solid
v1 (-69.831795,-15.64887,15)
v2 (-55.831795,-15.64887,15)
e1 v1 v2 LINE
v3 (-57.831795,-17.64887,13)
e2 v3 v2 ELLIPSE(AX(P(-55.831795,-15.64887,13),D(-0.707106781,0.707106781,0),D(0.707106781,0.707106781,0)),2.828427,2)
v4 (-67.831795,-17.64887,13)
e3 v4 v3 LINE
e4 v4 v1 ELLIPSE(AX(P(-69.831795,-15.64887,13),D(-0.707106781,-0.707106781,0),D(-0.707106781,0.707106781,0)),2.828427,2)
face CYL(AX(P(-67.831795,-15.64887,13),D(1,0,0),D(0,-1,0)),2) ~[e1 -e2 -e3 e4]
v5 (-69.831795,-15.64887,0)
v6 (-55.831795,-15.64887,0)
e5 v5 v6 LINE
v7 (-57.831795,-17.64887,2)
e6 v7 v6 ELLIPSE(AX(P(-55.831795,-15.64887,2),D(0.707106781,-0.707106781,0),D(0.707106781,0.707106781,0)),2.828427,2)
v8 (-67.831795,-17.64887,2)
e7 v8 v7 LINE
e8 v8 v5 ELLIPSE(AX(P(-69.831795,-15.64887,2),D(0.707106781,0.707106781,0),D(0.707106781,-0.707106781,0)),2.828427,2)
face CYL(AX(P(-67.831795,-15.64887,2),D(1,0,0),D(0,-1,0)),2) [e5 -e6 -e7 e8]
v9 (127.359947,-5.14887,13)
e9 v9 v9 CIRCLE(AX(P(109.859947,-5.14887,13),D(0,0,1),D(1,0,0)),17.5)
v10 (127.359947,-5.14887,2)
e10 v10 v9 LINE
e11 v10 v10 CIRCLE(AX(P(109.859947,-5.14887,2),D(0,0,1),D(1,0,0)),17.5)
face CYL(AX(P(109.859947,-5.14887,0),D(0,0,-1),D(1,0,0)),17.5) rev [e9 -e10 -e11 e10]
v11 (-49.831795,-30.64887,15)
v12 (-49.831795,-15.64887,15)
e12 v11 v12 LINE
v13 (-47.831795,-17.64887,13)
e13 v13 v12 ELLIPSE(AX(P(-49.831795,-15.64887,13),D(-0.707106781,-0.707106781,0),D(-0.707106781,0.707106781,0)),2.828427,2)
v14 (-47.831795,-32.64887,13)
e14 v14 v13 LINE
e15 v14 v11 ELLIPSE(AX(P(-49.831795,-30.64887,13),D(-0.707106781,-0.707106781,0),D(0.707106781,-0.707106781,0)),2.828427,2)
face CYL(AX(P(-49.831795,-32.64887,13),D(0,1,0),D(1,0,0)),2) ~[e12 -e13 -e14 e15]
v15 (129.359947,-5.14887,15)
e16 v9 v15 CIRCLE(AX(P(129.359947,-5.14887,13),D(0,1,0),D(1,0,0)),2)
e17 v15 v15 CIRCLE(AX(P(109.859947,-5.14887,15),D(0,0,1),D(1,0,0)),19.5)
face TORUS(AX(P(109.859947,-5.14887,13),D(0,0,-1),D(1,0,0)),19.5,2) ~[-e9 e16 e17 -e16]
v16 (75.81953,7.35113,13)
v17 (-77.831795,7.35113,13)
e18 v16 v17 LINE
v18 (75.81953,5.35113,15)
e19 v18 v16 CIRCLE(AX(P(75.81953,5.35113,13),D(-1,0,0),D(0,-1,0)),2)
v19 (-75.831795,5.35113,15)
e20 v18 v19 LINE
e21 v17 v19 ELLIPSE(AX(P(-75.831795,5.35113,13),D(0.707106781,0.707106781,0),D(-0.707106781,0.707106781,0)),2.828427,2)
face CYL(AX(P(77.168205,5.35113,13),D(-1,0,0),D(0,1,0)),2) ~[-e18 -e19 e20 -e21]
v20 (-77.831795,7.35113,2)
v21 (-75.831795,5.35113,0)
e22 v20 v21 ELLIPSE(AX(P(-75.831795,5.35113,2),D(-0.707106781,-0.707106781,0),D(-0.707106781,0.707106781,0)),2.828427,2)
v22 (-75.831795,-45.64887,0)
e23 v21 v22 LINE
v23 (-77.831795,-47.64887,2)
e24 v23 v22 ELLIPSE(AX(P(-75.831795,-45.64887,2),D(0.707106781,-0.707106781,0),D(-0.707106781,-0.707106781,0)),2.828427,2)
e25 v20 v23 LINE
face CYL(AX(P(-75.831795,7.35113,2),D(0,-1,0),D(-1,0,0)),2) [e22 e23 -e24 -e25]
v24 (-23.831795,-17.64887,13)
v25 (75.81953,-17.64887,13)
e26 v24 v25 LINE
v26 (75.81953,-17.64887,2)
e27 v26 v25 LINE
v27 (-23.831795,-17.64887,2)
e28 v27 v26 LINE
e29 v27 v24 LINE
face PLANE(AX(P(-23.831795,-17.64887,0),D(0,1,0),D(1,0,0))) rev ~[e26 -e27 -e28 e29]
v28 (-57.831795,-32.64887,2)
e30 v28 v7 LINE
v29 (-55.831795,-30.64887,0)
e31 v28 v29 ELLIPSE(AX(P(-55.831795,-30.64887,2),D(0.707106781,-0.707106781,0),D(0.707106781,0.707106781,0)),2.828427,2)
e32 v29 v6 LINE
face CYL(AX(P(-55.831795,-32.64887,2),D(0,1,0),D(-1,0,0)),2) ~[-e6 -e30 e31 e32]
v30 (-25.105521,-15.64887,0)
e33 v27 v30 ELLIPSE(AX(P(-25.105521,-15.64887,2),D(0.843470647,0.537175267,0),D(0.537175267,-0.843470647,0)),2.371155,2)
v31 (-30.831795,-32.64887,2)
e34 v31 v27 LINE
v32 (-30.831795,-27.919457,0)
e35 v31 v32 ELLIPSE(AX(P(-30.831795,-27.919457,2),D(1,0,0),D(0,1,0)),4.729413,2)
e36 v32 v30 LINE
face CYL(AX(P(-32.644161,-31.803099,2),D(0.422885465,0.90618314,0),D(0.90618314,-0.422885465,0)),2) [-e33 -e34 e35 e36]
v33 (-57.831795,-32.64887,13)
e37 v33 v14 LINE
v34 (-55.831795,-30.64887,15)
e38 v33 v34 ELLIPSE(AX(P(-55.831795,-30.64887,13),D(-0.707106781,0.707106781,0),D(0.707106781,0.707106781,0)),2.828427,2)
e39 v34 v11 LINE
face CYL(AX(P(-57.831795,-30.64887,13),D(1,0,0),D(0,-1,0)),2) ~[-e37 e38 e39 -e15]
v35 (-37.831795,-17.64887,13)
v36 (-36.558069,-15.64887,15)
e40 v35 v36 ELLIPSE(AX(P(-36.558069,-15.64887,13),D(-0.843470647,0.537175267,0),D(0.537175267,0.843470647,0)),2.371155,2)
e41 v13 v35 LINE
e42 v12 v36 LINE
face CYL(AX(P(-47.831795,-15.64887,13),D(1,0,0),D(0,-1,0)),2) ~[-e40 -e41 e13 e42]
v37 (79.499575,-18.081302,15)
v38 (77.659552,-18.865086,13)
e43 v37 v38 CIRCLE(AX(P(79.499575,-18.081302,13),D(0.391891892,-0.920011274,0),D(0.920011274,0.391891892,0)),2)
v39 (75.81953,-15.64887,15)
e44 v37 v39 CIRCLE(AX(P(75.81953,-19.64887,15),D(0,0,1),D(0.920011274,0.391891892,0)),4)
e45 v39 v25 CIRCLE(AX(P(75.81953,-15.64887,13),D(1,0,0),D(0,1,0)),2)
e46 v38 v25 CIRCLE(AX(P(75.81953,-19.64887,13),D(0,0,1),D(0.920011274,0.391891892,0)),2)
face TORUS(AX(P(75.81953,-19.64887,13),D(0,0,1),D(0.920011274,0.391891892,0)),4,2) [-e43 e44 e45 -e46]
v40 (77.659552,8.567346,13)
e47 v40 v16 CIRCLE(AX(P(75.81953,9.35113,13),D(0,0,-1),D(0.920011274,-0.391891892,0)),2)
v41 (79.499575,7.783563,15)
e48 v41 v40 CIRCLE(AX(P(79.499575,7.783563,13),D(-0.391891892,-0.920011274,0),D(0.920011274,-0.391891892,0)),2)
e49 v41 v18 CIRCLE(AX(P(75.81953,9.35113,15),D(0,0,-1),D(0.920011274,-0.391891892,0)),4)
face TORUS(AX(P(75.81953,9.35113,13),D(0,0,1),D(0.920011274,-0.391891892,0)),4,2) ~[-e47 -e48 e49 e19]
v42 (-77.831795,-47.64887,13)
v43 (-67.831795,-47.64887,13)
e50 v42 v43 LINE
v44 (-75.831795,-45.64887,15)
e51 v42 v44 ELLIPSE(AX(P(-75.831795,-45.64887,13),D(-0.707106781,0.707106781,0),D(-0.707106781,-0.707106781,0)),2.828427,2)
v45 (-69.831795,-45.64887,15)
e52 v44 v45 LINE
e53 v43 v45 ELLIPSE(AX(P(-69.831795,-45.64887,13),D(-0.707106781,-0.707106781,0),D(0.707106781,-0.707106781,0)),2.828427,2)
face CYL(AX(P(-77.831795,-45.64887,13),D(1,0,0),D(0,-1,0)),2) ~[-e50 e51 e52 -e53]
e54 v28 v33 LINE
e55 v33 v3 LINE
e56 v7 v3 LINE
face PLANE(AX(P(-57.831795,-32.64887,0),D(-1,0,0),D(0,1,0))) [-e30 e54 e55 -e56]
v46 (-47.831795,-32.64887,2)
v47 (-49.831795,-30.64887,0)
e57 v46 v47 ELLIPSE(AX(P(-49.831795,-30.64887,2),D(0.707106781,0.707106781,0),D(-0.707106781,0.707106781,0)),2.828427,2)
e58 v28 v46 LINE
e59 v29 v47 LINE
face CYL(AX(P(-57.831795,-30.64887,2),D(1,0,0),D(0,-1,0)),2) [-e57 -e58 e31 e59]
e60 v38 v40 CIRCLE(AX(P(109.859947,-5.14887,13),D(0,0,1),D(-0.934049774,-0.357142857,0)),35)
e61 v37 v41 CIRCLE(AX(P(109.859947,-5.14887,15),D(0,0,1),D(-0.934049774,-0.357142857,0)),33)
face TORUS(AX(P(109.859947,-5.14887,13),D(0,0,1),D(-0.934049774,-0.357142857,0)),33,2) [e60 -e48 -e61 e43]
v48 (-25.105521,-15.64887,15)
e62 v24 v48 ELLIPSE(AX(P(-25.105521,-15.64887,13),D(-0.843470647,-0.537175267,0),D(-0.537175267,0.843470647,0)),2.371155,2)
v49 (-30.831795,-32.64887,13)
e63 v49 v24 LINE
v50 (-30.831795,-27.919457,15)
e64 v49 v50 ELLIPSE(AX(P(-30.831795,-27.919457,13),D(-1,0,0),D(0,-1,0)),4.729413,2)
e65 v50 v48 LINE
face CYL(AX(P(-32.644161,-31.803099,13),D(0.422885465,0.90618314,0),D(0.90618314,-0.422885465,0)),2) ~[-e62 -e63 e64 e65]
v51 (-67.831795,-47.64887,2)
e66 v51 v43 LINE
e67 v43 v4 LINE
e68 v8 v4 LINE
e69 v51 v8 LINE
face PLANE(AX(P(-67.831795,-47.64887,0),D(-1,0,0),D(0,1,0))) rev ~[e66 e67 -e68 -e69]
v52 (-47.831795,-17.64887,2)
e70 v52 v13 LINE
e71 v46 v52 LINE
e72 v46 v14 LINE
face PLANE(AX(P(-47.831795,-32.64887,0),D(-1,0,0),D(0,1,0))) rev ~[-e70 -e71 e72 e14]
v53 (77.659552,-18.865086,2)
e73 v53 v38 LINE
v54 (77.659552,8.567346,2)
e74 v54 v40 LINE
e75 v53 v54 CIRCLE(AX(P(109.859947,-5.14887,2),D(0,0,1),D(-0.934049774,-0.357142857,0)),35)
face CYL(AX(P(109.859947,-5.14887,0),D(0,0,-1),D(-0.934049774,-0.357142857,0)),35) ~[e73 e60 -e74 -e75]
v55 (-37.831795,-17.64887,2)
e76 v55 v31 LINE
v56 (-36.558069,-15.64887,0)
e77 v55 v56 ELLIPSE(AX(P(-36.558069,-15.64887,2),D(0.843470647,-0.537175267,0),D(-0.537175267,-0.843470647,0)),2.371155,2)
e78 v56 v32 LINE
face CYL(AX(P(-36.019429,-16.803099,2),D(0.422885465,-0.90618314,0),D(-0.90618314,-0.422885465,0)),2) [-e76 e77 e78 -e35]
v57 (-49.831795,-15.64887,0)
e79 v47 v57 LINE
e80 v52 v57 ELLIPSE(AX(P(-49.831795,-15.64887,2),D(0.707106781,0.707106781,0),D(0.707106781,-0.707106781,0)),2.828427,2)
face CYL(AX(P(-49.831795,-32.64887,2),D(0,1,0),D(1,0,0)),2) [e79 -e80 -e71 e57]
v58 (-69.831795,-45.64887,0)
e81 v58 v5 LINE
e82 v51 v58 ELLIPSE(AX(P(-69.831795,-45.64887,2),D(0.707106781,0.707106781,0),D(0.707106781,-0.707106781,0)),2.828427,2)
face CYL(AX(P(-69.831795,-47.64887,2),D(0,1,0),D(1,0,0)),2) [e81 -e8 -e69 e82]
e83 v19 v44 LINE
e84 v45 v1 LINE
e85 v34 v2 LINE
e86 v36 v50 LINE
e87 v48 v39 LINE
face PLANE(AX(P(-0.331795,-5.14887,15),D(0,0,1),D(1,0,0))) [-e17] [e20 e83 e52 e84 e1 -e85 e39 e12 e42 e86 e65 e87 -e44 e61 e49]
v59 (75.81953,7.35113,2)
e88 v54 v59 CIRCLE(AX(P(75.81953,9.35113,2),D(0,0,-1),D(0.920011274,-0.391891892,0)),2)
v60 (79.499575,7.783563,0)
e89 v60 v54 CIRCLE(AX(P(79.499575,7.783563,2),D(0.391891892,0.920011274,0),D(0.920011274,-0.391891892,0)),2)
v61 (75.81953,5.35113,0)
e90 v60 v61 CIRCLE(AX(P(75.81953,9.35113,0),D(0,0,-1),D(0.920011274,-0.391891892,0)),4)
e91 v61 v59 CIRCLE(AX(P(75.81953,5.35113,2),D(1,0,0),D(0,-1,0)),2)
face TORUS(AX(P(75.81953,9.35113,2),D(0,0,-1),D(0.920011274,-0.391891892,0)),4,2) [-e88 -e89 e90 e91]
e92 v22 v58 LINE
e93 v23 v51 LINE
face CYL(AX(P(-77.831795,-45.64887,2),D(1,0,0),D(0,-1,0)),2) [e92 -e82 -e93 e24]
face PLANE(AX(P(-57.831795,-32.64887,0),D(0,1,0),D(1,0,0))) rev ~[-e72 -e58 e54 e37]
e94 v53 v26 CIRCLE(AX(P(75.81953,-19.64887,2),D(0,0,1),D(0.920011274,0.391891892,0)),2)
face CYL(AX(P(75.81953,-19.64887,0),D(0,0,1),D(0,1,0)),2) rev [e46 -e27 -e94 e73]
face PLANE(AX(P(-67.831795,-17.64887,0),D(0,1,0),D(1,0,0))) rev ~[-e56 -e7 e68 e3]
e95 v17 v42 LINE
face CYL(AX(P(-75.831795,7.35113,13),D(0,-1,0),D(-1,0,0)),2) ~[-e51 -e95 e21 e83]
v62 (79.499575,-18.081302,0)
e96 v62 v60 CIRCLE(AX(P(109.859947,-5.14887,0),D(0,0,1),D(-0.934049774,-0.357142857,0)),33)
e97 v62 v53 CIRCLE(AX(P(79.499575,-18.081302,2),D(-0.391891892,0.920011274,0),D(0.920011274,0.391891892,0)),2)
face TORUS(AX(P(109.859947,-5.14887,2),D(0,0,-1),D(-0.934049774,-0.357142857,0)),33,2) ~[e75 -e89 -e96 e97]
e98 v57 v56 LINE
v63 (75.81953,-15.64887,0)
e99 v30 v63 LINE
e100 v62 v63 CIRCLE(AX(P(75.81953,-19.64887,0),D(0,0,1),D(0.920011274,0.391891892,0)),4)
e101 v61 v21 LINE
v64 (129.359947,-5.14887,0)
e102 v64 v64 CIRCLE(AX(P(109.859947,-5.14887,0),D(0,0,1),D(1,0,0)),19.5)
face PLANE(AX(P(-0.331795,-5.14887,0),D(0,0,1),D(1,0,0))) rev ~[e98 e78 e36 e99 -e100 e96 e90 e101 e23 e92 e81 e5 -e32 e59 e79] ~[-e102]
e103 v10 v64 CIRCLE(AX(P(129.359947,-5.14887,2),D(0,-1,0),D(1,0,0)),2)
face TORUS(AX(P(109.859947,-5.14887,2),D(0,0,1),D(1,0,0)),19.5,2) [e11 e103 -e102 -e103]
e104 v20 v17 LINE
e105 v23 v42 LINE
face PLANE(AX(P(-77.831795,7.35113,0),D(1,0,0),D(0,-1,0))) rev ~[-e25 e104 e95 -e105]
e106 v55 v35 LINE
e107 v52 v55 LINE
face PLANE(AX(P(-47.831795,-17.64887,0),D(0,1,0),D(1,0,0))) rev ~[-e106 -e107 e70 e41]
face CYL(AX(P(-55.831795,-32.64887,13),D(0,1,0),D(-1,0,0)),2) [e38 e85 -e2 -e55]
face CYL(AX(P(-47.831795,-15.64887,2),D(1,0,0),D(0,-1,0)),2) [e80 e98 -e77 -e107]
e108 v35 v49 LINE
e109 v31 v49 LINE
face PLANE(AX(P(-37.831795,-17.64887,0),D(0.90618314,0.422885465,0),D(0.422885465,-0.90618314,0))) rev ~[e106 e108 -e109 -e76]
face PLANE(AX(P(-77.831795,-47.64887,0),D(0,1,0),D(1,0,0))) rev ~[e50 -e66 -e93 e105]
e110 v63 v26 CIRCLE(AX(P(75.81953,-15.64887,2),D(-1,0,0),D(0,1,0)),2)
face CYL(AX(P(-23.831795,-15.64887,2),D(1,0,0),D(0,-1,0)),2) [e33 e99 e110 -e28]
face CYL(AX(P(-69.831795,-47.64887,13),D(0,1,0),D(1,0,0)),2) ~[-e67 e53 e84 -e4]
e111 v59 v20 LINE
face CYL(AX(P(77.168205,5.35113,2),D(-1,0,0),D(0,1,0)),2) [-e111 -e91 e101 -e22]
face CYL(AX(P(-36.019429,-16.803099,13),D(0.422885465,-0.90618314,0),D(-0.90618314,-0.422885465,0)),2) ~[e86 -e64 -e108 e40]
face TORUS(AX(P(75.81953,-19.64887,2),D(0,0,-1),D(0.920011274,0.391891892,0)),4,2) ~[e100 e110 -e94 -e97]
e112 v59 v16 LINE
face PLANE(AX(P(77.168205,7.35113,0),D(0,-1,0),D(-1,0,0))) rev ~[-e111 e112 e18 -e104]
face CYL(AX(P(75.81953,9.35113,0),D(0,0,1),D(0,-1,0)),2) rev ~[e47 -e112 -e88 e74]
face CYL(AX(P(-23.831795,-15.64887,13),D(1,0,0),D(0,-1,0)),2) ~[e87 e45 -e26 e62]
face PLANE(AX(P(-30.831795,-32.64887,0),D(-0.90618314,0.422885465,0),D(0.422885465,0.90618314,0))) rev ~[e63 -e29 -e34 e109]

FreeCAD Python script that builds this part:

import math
import FreeCAD as App
import Part
import Sketcher
from FreeCAD import Vector
Q = App.Units.Quantity


def edges_at(feature, points):
    """Names of the edges that pass closest to the given points."""
    edges = feature.Shape.Edges
    near = lambda p: min(range(len(edges)), key=lambda i: edges[i].distToShape(Part.Vertex(*p))[0])
    return sorted({f"Edge{near(p) + 1}" for p in points})

doc = App.newDocument("Part")
params = doc.addObject("Spreadsheet::Sheet", "Params")
for row, (alias, value) in enumerate([
    ("sketch1_diameter", "35 mm"),
    ("sketch1_radius", "35 mm"),
    ("sketch1_width", "155 mm"),
    ("sketch1_width2", "10 mm"),
    ("sketch1_width3", "101 mm"),
    ("pad1_length", "15 mm"),
    ("fillet_radius", "2 mm"),
], start=1):
    params.set(f"A{row}", alias)
    params.set(f"B{row}", "=" + value)
    params.setAlias(f"B{row}", alias)

body = doc.addObject("PartDesign::Body", "Body")

# Sketch on XY plane
sketch1 = body.newObject("Sketcher::SketchObject", "Sketch")
sketch1.AttachmentSupport = (doc.getObject("XY_Plane"), [""])
sketch1.MapMode = "FlatFace"
sketch1.addGeometry([
    Part.LineSegment(Vector(77, 7, 0), Vector(-78, 7, 0)),  # 0
    Part.LineSegment(Vector(-78, 7, 0), Vector(-78, -48, 0)),  # 1
    Part.LineSegment(Vector(-78, -48, 0), Vector(-68, -48, 0)),  # 2
    Part.LineSegment(Vector(-68, -48, 0), Vector(-68, -18, 0)),  # 3
    Part.LineSegment(Vector(-68, -18, 0), Vector(-58, -18, 0)),  # 4
    Part.LineSegment(Vector(-58, -18, 0), Vector(-58, -33, 0)),  # 5
    Part.LineSegment(Vector(-58, -33, 0), Vector(-48, -33, 0)),  # 6
    Part.LineSegment(Vector(-48, -33, 0), Vector(-48, -18, 0)),  # 7
    Part.LineSegment(Vector(-48, -18, 0), Vector(-38, -18, 0)),  # 8
    Part.LineSegment(Vector(-38, -18, 0), Vector(-31, -33, 0)),  # 9
    Part.LineSegment(Vector(-31, -33, 0), Vector(-24, -18, 0)),  # 10
    Part.LineSegment(Vector(-24, -18, 0), Vector(77, -18, 0)),  # 11
    Part.ArcOfCircle(Part.Circle(Vector(110, -5, 0), Vector(0, 0, 1), 35), math.radians(-159), math.radians(159)),  # 12
    Part.Circle(Vector(110, -5, 0), Vector(0, 0, 1), 18),  # 13
], False)
sketch1.addConstraint([
    Sketcher.Constraint("Coincident", 0, 2, 1, 1),
    Sketcher.Constraint("Coincident", 1, 2, 2, 1),
    Sketcher.Constraint("Coincident", 2, 2, 3, 1),
    Sketcher.Constraint("Coincident", 3, 2, 4, 1),
    Sketcher.Constraint("Coincident", 4, 2, 5, 1),
    Sketcher.Constraint("Coincident", 5, 2, 6, 1),
    Sketcher.Constraint("Coincident", 6, 2, 7, 1),
    Sketcher.Constraint("Coincident", 7, 2, 8, 1),
    Sketcher.Constraint("Coincident", 8, 2, 9, 1),
    Sketcher.Constraint("Coincident", 9, 2, 10, 1),
    Sketcher.Constraint("Coincident", 10, 2, 11, 1),
    Sketcher.Constraint("Coincident", 11, 2, 12, 1),
    Sketcher.Constraint("Coincident", 12, 2, 0, 1),
    Sketcher.Constraint("Horizontal", 0),
    Sketcher.Constraint("Vertical", 1),
    Sketcher.Constraint("Horizontal", 2),
    Sketcher.Constraint("Vertical", 3),
    Sketcher.Constraint("Horizontal", 4),
    Sketcher.Constraint("Vertical", 5),
    Sketcher.Constraint("Horizontal", 6),
    Sketcher.Constraint("Vertical", 7),
    Sketcher.Constraint("Horizontal", 8),
    Sketcher.Constraint("Horizontal", 11),
    Sketcher.Constraint("Coincident", 13, 3, 12, 3),
    Sketcher.Constraint("Horizontal", 4, 2, 7, 2),
    Sketcher.Constraint("Horizontal", 6, 2, 9, 2),
    Sketcher.Constraint("Horizontal", 8, 2, 10, 2),
    Sketcher.Constraint("Vertical", 11, 2, 12, 2),
    Sketcher.Constraint("Equal", 2, 4),
    Sketcher.Constraint("Equal", 4, 6),
    Sketcher.Constraint("Equal", 6, 8),
    Sketcher.Constraint("Equal", 9, 10),
    Sketcher.Constraint("Diameter", 13, Q("35 mm")),
    Sketcher.Constraint("Radius", 12, Q("35 mm")),
    Sketcher.Constraint("DistanceX", 0, 2, 0, 1, Q("155 mm")),
    Sketcher.Constraint("DistanceX", 2, 1, 2, 2, Q("10 mm")),
    Sketcher.Constraint("DistanceX", 11, 1, 11, 2, Q("101 mm")),
    Sketcher.Constraint("DistanceY", 1, 2, 1, 1, Q("55 mm")),
    Sketcher.Constraint("DistanceY", 3, 1, 3, 2, Q("30 mm")),
    Sketcher.Constraint("DistanceY", 5, 2, 5, 1, Q("15 mm")),
    Sketcher.Constraint("DistanceY", 12, 3, -1, 1, Q("5.14887 mm")),
    Sketcher.Constraint("DistanceX", -1, 1, 12, 3, Q("109.859947 mm")),
])
sketch1.setExpression("Constraints[32]", "Params.sketch1_diameter")
sketch1.setExpression("Constraints[33]", "Params.sketch1_radius")
sketch1.setExpression("Constraints[34]", "Params.sketch1_width")
sketch1.setExpression("Constraints[35]", "Params.sketch1_width2")
sketch1.setExpression("Constraints[36]", "Params.sketch1_width3")
pad1 = body.newObject("PartDesign::Pad", "Pad")
pad1.Profile = sketch1
pad1.setExpression("Length", "Params.pad1_length")
doc.recompute()

fillet = body.newObject("PartDesign::Fillet", "Fillet")
fillet.Base = (pad1, edges_at(pad1, [
    (-0.332, 7.351, 0),
    (26.668, -17.649, 0),
    (-27.332, -25.149, 0),
    (-34.332, -25.149, 0),
    (-42.832, -17.649, 0),
    (-47.832, -25.149, 0),
    (-52.832, -32.649, 0),
    (-77.832, -20.149, 0),
    (-62.832, -17.649, 0),
    (-57.832, -25.149, 0),
    (-72.832, -47.649, 0),
    (-67.832, -32.649, 0),
    (77.168, -17.649, 7.5),
    (77.168, 7.351, 7.5),
    (144.86, -5.149, 0),
    (144.86, -5.149, 15),
    (92.36, -5.149, 0),
    (-0.332, 7.351, 15),
    (-77.832, -20.149, 15),
    (-72.832, -47.649, 15),
    (-67.832, -32.649, 15),
    (-62.832, -17.649, 15),
    (-57.832, -25.149, 15),
    (-52.832, -32.649, 15),
    (-47.832, -25.149, 15),
    (-42.832, -17.649, 15),
    (-34.332, -25.149, 15),
    (-27.332, -25.149, 15),
    (26.668, -17.649, 15),
    (92.36, -5.149, 15),
]))
fillet.setExpression("Radius", "Params.fillet_radius")

doc.recompute()
